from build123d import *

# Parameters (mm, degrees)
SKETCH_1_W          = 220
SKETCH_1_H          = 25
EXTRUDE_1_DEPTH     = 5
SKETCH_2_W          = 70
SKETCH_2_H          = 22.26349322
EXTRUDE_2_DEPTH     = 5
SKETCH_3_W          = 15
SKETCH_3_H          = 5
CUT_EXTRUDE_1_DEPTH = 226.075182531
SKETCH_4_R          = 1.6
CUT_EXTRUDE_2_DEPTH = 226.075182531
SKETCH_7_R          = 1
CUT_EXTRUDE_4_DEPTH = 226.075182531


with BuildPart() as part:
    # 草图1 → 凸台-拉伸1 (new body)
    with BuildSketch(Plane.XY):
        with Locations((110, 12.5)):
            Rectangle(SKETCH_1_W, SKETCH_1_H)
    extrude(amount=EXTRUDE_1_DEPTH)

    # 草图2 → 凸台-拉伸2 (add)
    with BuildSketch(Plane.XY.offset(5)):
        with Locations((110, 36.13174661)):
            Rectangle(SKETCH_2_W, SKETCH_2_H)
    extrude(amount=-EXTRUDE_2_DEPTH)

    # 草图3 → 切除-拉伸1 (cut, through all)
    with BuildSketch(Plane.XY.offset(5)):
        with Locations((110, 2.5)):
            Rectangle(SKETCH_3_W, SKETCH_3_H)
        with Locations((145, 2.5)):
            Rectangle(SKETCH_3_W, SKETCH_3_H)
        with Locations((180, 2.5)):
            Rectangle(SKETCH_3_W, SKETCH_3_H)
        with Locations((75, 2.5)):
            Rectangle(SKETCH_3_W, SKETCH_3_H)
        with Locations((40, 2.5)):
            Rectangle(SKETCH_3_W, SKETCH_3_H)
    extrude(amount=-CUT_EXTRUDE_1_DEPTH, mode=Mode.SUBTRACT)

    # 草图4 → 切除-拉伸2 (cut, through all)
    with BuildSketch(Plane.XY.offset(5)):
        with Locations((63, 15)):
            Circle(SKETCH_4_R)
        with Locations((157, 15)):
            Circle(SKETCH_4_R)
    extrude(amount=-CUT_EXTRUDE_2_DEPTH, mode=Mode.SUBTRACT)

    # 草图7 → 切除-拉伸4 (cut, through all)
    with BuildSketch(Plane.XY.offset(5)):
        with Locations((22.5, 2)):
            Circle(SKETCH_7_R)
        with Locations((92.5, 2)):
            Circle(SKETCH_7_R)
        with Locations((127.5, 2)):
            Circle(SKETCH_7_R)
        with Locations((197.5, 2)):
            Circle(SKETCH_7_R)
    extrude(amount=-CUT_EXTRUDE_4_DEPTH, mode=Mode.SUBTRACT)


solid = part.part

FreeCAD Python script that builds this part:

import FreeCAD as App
import Part
import Sketcher
from FreeCAD import Vector
Q = App.Units.Quantity

doc = App.newDocument("Part")
body = doc.addObject("PartDesign::Body", "Body")

sketch1 = doc.addObject("Sketcher::SketchObject", "Sketch")
body.addObject(sketch1)
sketch1.AttachmentSupport = (doc.XY_Plane, [""])
sketch1.MapMode = "FlatFace"
sketch1.addGeometry([
    Part.LineSegment(Vector(0, 25, 0), Vector(0, 0, 0)),
    Part.LineSegment(Vector(0, 0, 0), Vector(220, 0, 0)),
    Part.LineSegment(Vector(220, 0, 0), Vector(220, 25, 0)),
    Part.LineSegment(Vector(220, 25, 0), Vector(0, 25, 0)),
], False)
sketch1.addConstraint([
    Sketcher.Constraint("Coincident", 0, 2, 1, 1),
    Sketcher.Constraint("Coincident", 1, 2, 2, 1),
    Sketcher.Constraint("Coincident", 2, 2, 3, 1),
    Sketcher.Constraint("Coincident", 3, 2, 0, 1),
    Sketcher.Constraint("Vertical", 0),
    Sketcher.Constraint("Horizontal", 1),
    Sketcher.Constraint("Vertical", 2),
    Sketcher.Constraint("Horizontal", 3),
    Sketcher.Constraint("Coincident", 0, 2, -1, 1),
    Sketcher.Constraint("DistanceX", 1, 1, 1, 2, Q("220 mm")),
    Sketcher.Constraint("DistanceY", 0, 2, 0, 1, Q("25 mm")),
])
pad1 = doc.addObject("PartDesign::Pad", "Pad")
body.addObject(pad1)
pad1.Profile = sketch1
pad1.Length = 5

sketch2 = doc.addObject("Sketcher::SketchObject", "Sketch001")
body.addObject(sketch2)
sketch2.AttachmentSupport = (doc.XY_Plane, [""])
sketch2.MapMode = "FlatFace"
sketch2.AttachmentOffset = App.Placement(Vector(0, 0, 5), App.Rotation())
sketch2.addGeometry([
    Part.LineSegment(Vector(75, 47.263493, 0), Vector(75, 25, 0)),
    Part.LineSegment(Vector(75, 25, 0), Vector(145, 25, 0)),
    Part.LineSegment(Vector(145, 25, 0), Vector(145, 47.263493, 0)),
    Part.LineSegment(Vector(145, 47.263493, 0), Vector(75, 47.263493, 0)),
], False)
sketch2.addConstraint([
    Sketcher.Constraint("Coincident", 0, 2, 1, 1),
    Sketcher.Constraint("Coincident", 1, 2, 2, 1),
    Sketcher.Constraint("Coincident", 2, 2, 3, 1),
    Sketcher.Constraint("Coincident", 3, 2, 0, 1),
    Sketcher.Constraint("Vertical", 0),
    Sketcher.Constraint("Horizontal", 1),
    Sketcher.Constraint("Vertical", 2),
    Sketcher.Constraint("Horizontal", 3),
    Sketcher.Constraint("DistanceX", 1, 1, 1, 2, Q("70 mm")),
    Sketcher.Constraint("DistanceX", -1, 1, 0, 2, Q("75 mm")),
    Sketcher.Constraint("DistanceY", -1, 1, 0, 2, Q("25 mm")),
    Sketcher.Constraint("DistanceY", 0, 2, 0, 1, Q("22.263493 mm")),
])
pad2 = doc.addObject("PartDesign::Pad", "Pad001")
body.addObject(pad2)
pad2.Profile = sketch2
pad2.Length = 5
pad2.Reversed = True

sketch3 = doc.addObject("Sketcher::SketchObject", "Sketch002")
body.addObject(sketch3)
sketch3.AttachmentSupport = (doc.XY_Plane, [""])
sketch3.MapMode = "FlatFace"
sketch3.AttachmentOffset = App.Placement(Vector(0, 0, 5), App.Rotation())
sketch3.addGeometry([
    Part.LineSegment(Vector(102.5, 5, 0), Vector(102.5, 0, 0)),
    Part.LineSegment(Vector(102.5, 0, 0), Vector(117.5, 0, 0)),
    Part.LineSegment(Vector(117.5, 0, 0), Vector(117.5, 5, 0)),
    Part.LineSegment(Vector(117.5, 5, 0), Vector(102.5, 5, 0)),
    Part.LineSegment(Vector(137.5, 5, 0), Vector(137.5, 0, 0)),
    Part.LineSegment(Vector(137.5, 0, 0), Vector(152.5, 0, 0)),
    Part.LineSegment(Vector(152.5, 0, 0), Vector(152.5, 5, 0)),
    Part.LineSegment(Vector(152.5, 5, 0), Vector(137.5, 5, 0)),
    Part.LineSegment(Vector(172.5, 5, 0), Vector(172.5, 0, 0)),
    Part.LineSegment(Vector(172.5, 0, 0), Vector(187.5, 0, 0)),
    Part.LineSegment(Vector(187.5, 0, 0), Vector(187.5, 5, 0)),
    Part.LineSegment(Vector(187.5, 5, 0), Vector(172.5, 5, 0)),
    Part.LineSegment(Vector(67.5, 5, 0), Vector(67.5, 0, 0)),
    Part.LineSegment(Vector(67.5, 0, 0), Vector(82.5, 0, 0)),
    Part.LineSegment(Vector(82.5, 0, 0), Vector(82.5, 5, 0)),
    Part.LineSegment(Vector(82.5, 5, 0), Vector(67.5, 5, 0)),
    Part.LineSegment(Vector(32.5, 5, 0), Vector(32.5, 0, 0)),
    Part.LineSegment(Vector(32.5, 0, 0), Vector(47.5, 0, 0)),
    Part.LineSegment(Vector(47.5, 0, 0), Vector(47.5, 5, 0)),
    Part.LineSegment(Vector(47.5, 5, 0), Vector(32.5, 5, 0)),
], False)
sketch3.addConstraint([
    Sketcher.Constraint("Coincident", 0, 2, 1, 1),
    Sketcher.Constraint("Coincident", 1, 2, 2, 1),
    Sketcher.Constraint("Coincident", 2, 2, 3, 1),
    Sketcher.Constraint("Coincident", 3, 2, 0, 1),
    Sketcher.Constraint("Coincident", 4, 2, 5, 1),
    Sketcher.Constraint("Coincident", 5, 2, 6, 1),
    Sketcher.Constraint("Coincident", 6, 2, 7, 1),
    Sketcher.Constraint("Coincident", 7, 2, 4, 1),
    Sketcher.Constraint("Coincident", 8, 2, 9, 1),
    Sketcher.Constraint("Coincident", 9, 2, 10, 1),
    Sketcher.Constraint("Coincident", 10, 2, 11, 1),
    Sketcher.Constraint("Coincident", 11, 2, 8, 1),
    Sketcher.Constraint("Coincident", 12, 2, 13, 1),
    Sketcher.Constraint("Coincident", 13, 2, 14, 1),
    Sketcher.Constraint("Coincident", 14, 2, 15, 1),
    Sketcher.Constraint("Coincident", 15, 2, 12, 1),
    Sketcher.Constraint("Coincident", 16, 2, 17, 1),
    Sketcher.Constraint("Coincident", 17, 2, 18, 1),
    Sketcher.Constraint("Coincident", 18, 2, 19, 1),
    Sketcher.Constraint("Coincident", 19, 2, 16, 1),
    Sketcher.Constraint("Vertical", 0),
    Sketcher.Constraint("Horizontal", 1),
    Sketcher.Constraint("Vertical", 2),
    Sketcher.Constraint("Horizontal", 3),
    Sketcher.Constraint("Vertical", 4),
    Sketcher.Constraint("Horizontal", 5),
    Sketcher.Constraint("Vertical", 6),
    Sketcher.Constraint("Horizontal", 7),
    Sketcher.Constraint("Vertical", 8),
    Sketcher.Constraint("Horizontal", 9),
    Sketcher.Constraint("Vertical", 10),
    Sketcher.Constraint("Horizontal", 11),
    Sketcher.Constraint("Vertical", 12),
    Sketcher.Constraint("Horizontal", 13),
    Sketcher.Constraint("Vertical", 14),
    Sketcher.Constraint("Horizontal", 15),
    Sketcher.Constraint("Vertical", 16),
    Sketcher.Constraint("Horizontal", 17),
    Sketcher.Constraint("Vertical", 18),
    Sketcher.Constraint("Horizontal", 19),
    Sketcher.Constraint("PointOnObject", 0, 2, -1),
    Sketcher.Constraint("PointOnObject", 4, 2, -1),
    Sketcher.Constraint("PointOnObject", 8, 2, -1),
    Sketcher.Constraint("PointOnObject", 12, 2, -1),
    Sketcher.Constraint("PointOnObject", 16, 2, -1),
    Sketcher.Constraint("Horizontal", 3, 2, 6, 2),
    Sketcher.Constraint("Horizontal", 7, 2, 10, 2),
    Sketcher.Constraint("Horizontal", 11, 2, 14, 2),
    Sketcher.Constraint("Horizontal", 15, 2, 18, 2),
    Sketcher.Constraint("Equal", 3, 5),
    Sketcher.Constraint("Equal", 7, 9),
    Sketcher.Constraint("Equal", 11, 13),
    Sketcher.Constraint("Equal", 15, 17),
    Sketcher.Constraint("DistanceX", 1, 1, 1, 2, Q("15 mm")),
    Sketcher.Constraint("DistanceY", 0, 2, 0, 1, Q("5 mm")),
    Sketcher.Constraint("DistanceX", 1, 2, 4, 2, Q("20 mm")),
    Sketcher.Constraint("DistanceX", 5, 2, 8, 2, Q("20 mm")),
    Sketcher.Constraint("DistanceX", 12, 2, 0, 2, Q("35 mm")),
    Sketcher.Constraint("DistanceX", 16, 2, 12, 2, Q("35 mm")),
    Sketcher.Constraint("DistanceX", -1, 1, 0, 2, Q("102.5 mm")),
])
pocket1 = doc.addObject("PartDesign::Pocket", "Pocket")
body.addObject(pocket1)
pocket1.Profile = sketch3
pocket1.Type = "ThroughAll"

sketch4 = doc.addObject("Sketcher::SketchObject", "Sketch003")
body.addObject(sketch4)
sketch4.AttachmentSupport = (doc.XY_Plane, [""])
sketch4.MapMode = "FlatFace"
sketch4.AttachmentOffset = App.Placement(Vector(0, 0, 5), App.Rotation())
sketch4.addGeometry([
    Part.Circle(Vector(63, 15, 0), Vector(0, 0, 1), 1.6),
    Part.Circle(Vector(157, 15, 0), Vector(0, 0, 1), 1.6),
], False)
sketch4.addConstraint([
    Sketcher.Constraint("Equal", 0, 1),
    Sketcher.Constraint("Horizontal", 0, 3, 1, 3),
    Sketcher.Constraint("Diameter", 0, Q("3.2 mm")),
    Sketcher.Constraint("DistanceX", -1, 1, 0, 3, Q("63 mm")),
    Sketcher.Constraint("DistanceY", -1, 1, 0, 3, Q("15 mm")),
    Sketcher.Constraint("DistanceX", -1, 1, 1, 3, Q("157 mm")),
])
pocket2 = doc.addObject("PartDesign::Pocket", "Pocket001")
body.addObject(pocket2)
pocket2.Profile = sketch4
pocket2.Type = "ThroughAll"

sketch5 = doc.addObject("Sketcher::SketchObject", "Sketch004")
body.addObject(sketch5)
sketch5.AttachmentSupport = (doc.XY_Plane, [""])
sketch5.MapMode = "FlatFace"
sketch5.AttachmentOffset = App.Placement(Vector(0, 0, 5), App.Rotation())
sketch5.addGeometry([
    Part.Circle(Vector(22.5, 2, 0), Vector(0, 0, 1), 1),
    Part.Circle(Vector(92.5, 2, 0), Vector(0, 0, 1), 1),
    Part.Circle(Vector(127.5, 2, 0), Vector(0, 0, 1), 1),
    Part.Circle(Vector(197.5, 2, 0), Vector(0, 0, 1), 1),
], False)
sketch5.addConstraint([
    Sketcher.Constraint("Equal", 0, 1),
    Sketcher.Constraint("Equal", 1, 2),
    Sketcher.Constraint("Equal", 2, 3),
    Sketcher.Constraint("Horizontal", 0, 3, 1, 3),
    Sketcher.Constraint("Horizontal", 1, 3, 2, 3),
    Sketcher.Constraint("Horizontal", 2, 3, 3, 3),
    Sketcher.Constraint("Diameter", 0, Q("2 mm")),
    Sketcher.Constraint("DistanceY", -1, 1, 0, 3, Q("2 mm")),
    Sketcher.Constraint("DistanceX", 0, 3, 1, 3, Q("70 mm")),
    Sketcher.Constraint("DistanceX", 1, 3, 2, 3, Q("35 mm")),
    Sketcher.Constraint("DistanceX", 2, 3, 3, 3, Q("70 mm")),
    Sketcher.Constraint("DistanceX", -1, 1, 0, 3, Q("22.5 mm")),
])
pocket3 = doc.addObject("PartDesign::Pocket", "Pocket002")
body.addObject(pocket3)
pocket3.Profile = sketch5
pocket3.Type = "ThroughAll"

doc.recompute()
